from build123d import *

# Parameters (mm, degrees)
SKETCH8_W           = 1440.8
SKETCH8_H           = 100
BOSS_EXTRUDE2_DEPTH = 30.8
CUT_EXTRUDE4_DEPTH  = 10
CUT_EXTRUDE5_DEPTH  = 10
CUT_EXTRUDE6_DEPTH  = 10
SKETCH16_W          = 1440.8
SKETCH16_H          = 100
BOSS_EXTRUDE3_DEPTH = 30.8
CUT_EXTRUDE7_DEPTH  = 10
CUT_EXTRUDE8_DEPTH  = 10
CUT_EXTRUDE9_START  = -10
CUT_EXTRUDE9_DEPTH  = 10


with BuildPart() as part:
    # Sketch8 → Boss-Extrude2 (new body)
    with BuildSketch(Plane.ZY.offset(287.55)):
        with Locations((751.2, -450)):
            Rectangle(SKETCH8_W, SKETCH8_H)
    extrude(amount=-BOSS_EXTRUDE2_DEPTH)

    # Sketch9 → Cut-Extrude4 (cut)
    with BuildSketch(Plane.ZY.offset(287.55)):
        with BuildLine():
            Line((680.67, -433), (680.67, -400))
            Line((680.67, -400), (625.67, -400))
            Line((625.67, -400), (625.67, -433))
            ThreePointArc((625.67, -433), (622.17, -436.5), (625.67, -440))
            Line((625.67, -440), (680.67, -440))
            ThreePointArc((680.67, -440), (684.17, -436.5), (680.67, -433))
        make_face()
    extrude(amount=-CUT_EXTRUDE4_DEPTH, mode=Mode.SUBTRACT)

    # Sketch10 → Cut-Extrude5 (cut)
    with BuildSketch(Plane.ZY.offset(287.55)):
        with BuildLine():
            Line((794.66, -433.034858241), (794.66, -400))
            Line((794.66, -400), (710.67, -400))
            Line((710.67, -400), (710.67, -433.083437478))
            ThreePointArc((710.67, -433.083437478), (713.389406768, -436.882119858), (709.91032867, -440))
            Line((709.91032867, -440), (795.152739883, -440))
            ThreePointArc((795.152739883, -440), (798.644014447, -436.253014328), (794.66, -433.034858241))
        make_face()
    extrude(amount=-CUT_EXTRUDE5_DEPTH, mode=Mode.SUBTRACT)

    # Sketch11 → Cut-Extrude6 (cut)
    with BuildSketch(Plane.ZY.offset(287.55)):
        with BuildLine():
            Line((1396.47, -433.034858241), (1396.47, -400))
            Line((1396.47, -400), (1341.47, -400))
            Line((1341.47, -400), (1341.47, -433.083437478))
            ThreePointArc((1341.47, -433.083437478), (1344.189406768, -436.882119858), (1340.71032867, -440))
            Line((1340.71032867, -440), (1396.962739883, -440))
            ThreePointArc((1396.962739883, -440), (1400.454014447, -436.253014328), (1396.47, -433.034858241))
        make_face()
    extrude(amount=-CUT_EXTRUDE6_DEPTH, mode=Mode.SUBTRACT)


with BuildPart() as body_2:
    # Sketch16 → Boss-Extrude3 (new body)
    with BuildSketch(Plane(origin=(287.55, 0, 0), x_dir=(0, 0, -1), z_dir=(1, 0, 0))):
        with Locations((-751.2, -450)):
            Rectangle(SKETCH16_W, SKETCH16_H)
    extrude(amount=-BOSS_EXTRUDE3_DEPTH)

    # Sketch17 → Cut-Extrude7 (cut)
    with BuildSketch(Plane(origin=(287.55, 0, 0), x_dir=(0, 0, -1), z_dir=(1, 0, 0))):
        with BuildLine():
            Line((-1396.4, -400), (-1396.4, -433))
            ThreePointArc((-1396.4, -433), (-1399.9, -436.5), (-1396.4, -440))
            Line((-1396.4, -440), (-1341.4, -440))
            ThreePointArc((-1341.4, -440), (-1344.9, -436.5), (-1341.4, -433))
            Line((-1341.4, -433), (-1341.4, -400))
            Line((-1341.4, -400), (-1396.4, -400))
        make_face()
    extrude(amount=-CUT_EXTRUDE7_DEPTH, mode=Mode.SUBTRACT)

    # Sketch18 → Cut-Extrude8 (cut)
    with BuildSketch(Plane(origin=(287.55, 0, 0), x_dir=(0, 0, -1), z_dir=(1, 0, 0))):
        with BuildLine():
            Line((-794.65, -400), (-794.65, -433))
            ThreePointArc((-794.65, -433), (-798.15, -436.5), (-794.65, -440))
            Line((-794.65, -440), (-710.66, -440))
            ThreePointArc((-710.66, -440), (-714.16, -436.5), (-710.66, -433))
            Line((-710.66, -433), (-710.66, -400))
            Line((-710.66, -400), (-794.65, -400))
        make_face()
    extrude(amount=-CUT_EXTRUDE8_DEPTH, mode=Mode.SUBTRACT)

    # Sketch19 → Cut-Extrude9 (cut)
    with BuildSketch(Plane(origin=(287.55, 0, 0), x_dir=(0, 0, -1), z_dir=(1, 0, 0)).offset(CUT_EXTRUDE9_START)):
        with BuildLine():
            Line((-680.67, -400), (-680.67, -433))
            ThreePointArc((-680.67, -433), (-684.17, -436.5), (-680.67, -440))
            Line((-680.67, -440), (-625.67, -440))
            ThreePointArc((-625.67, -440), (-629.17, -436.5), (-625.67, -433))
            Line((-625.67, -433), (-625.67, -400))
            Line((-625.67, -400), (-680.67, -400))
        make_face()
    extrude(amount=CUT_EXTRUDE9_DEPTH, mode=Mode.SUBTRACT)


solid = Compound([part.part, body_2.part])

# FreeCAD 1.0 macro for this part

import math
import FreeCAD as App
import Part
import Sketcher

V = App.Vector
Q = App.Units.Quantity


def add_polygon(sketch, points):
    """Adds a closed chain of lines whose ends are joined by coincident constraints."""
    first, n = sketch.GeometryCount, len(points)
    for a, b in zip(points, points[1:] + points[:1]):
        sketch.addGeometry(Part.LineSegment(App.Vector(*a, 0), App.Vector(*b, 0)), False)
    for i in range(n):
        sketch.addConstraint(Sketcher.Constraint("Coincident", first + i, 2, first + (i + 1) % n, 1))

doc = App.newDocument("Part")
body = doc.addObject("PartDesign::Body", "Body")

# Sketch on YZ plane
sketch1 = doc.addObject("Sketcher::SketchObject", "Sketch")
body.addObject(sketch1)
sketch1.AttachmentSupport = (doc.YZ_Plane, [""])
sketch1.MapMode = "FlatFace"
sketch1.AttachmentOffset = App.Placement(V(0, 0, -287.55), App.Rotation())
add_polygon(sketch1, [(-400, 31), (-500, 31), (-500, 1472), (-400, 1472)])  # lines 0-3
sketch1.addConstraint([
    Sketcher.Constraint("Horizontal", 0),
    Sketcher.Constraint("Vertical", 1),
    Sketcher.Constraint("Horizontal", 2),
    Sketcher.Constraint("Vertical", 3),
    Sketcher.Constraint("DistanceX", 0, 2, 0, 1, Q("100 mm")),
    Sketcher.Constraint("DistanceY", 1, 1, 1, 2, Q("1440.8 mm")),
    Sketcher.Constraint("DistanceX", 0, 2, -1, 1, Q("500 mm")),
    Sketcher.Constraint("DistanceY", -1, 1, 0, 2, Q("30.8 mm")),
])
pad1 = doc.addObject("PartDesign::Pad", "Pad")
body.addObject(pad1)
pad1.Profile = sketch1
pad1.Length = 30.8

# Sketch on YZ plane
sketch2 = doc.addObject("Sketcher::SketchObject", "Sketch001")
body.addObject(sketch2)
sketch2.AttachmentSupport = (doc.YZ_Plane, [""])
sketch2.MapMode = "FlatFace"
sketch2.AttachmentOffset = App.Placement(V(0, 0, -287.55), App.Rotation())
sketch2.addGeometry([
    Part.LineSegment(V(-433, 680.7, 0), V(-400, 680.7, 0)),  # 0
    Part.LineSegment(V(-400, 680.7, 0), V(-400, 625.7, 0)),  # 1
    Part.LineSegment(V(-400, 625.7, 0), V(-433, 625.7, 0)),  # 2
    Part.ArcOfCircle(Part.Circle(V(-436.5, 625.7, 0), V(0, 0, 1), 3.5), math.radians(180), math.radians(360)),  # 3
    Part.LineSegment(V(-440, 625.7, 0), V(-440, 680.7, 0)),  # 4
    Part.ArcOfCircle(Part.Circle(V(-436.5, 680.7, 0), V(0, 0, 1), 3.5), math.radians(0), math.radians(180)),  # 5
], False)
sketch2.addConstraint([
    Sketcher.Constraint("Coincident", 0, 2, 1, 1),
    Sketcher.Constraint("Coincident", 1, 2, 2, 1),
    Sketcher.Constraint("Coincident", 2, 2, 3, 2),
    Sketcher.Constraint("Tangent", 3, 1, 4, 1),
    Sketcher.Constraint("Tangent", 4, 2, 5, 2),
    Sketcher.Constraint("Coincident", 5, 1, 0, 1),
    Sketcher.Constraint("Horizontal", 0),
    Sketcher.Constraint("Vertical", 1),
    Sketcher.Constraint("Horizontal", 2),
    Sketcher.Constraint("Vertical", 4),
    Sketcher.Constraint("Equal", 3, 5),
    Sketcher.Constraint("Horizontal", 5, 3, 0, 2),
    Sketcher.Constraint("Horizontal", 3, 3, 1, 2),
    Sketcher.Constraint("Radius", 3, Q("3.5 mm")),
    Sketcher.Constraint("DistanceX", 0, 1, 0, 2, Q("33 mm")),
    Sketcher.Constraint("DistanceY", 1, 2, 1, 1, Q("55 mm")),
    Sketcher.Constraint("DistanceX", 0, 2, -1, 1, Q("400 mm")),
    Sketcher.Constraint("DistanceY", -1, 1, 3, 3, Q("625.67 mm")),
])
pocket1 = doc.addObject("PartDesign::Pocket", "Pocket")
body.addObject(pocket1)
pocket1.Profile = sketch2
pocket1.Length = 10
pocket1.Reversed = True

# Sketch on YZ plane
sketch3 = doc.addObject("Sketcher::SketchObject", "Sketch002")
body.addObject(sketch3)
sketch3.AttachmentSupport = (doc.YZ_Plane, [""])
sketch3.MapMode = "FlatFace"
sketch3.AttachmentOffset = App.Placement(V(0, 0, -287.55), App.Rotation())
sketch3.addGeometry([
    Part.LineSegment(V(-433, 794.7, 0), V(-400, 794.7, 0)),  # 0
    Part.LineSegment(V(-400, 794.7, 0), V(-400, 710.7, 0)),  # 1
    Part.LineSegment(V(-400, 710.7, 0), V(-433.1, 710.7, 0)),  # 2
    Part.ArcOfCircle(Part.Circle(V(-436.5, 709.9, 0), V(0, 0, 1), 3.5), math.radians(13), math.radians(180)),  # 3
    Part.LineSegment(V(-440, 709.9, 0), V(-440, 795.2, 0)),  # 4
    Part.ArcOfCircle(Part.Circle(V(-436.5, 795.2, 0), V(0, 0, 1), 3.5), math.radians(-8), math.radians(180)),  # 5
], False)
sketch3.addConstraint([
    Sketcher.Constraint("Coincident", 0, 2, 1, 1),
    Sketcher.Constraint("Coincident", 1, 2, 2, 1),
    Sketcher.Constraint("Coincident", 2, 2, 3, 1),
    Sketcher.Constraint("Tangent", 3, 2, 4, 1),
    Sketcher.Constraint("Tangent", 4, 2, 5, 2),
    Sketcher.Constraint("Coincident", 5, 1, 0, 1),
    Sketcher.Constraint("Horizontal", 0),
    Sketcher.Constraint("Vertical", 1),
    Sketcher.Constraint("Horizontal", 2),
    Sketcher.Constraint("Vertical", 4),
    Sketcher.Constraint("Equal", 3, 5),
    Sketcher.Constraint("Radius", 3, Q("3.5 mm")),
    Sketcher.Constraint("DistanceX", 0, 2, -1, 1, Q("400 mm")),
    Sketcher.Constraint("DistanceX", 3, 2, -1, 1, Q("440 mm")),
    Sketcher.Constraint("DistanceY", 1, 2, 1, 1, Q("83.99 mm")),
    Sketcher.Constraint("DistanceY", -1, 1, 0, 2, Q("794.66 mm")),
    Sketcher.Constraint("DistanceX", 0, 1, 0, 2, Q("33.034858 mm")),
    Sketcher.Constraint("DistanceY", 4, 1, 4, 2, Q("85.242411 mm")),
])
pocket2 = doc.addObject("PartDesign::Pocket", "Pocket001")
body.addObject(pocket2)
pocket2.Profile = sketch3
pocket2.Length = 10
pocket2.Reversed = True

# Sketch on YZ plane
sketch4 = doc.addObject("Sketcher::SketchObject", "Sketch003")
body.addObject(sketch4)
sketch4.AttachmentSupport = (doc.YZ_Plane, [""])
sketch4.MapMode = "FlatFace"
sketch4.AttachmentOffset = App.Placement(V(0, 0, -287.55), App.Rotation())
sketch4.addGeometry([
    Part.LineSegment(V(-433, 1396.5, 0), V(-400, 1396.5, 0)),  # 0
    Part.LineSegment(V(-400, 1396.5, 0), V(-400, 1341.5, 0)),  # 1
    Part.LineSegment(V(-400, 1341.5, 0), V(-433.1, 1341.5, 0)),  # 2
    Part.ArcOfCircle(Part.Circle(V(-436.5, 1340.7, 0), V(0, 0, 1), 3.5), math.radians(13), math.radians(180)),  # 3
    Part.LineSegment(V(-440, 1340.7, 0), V(-440, 1397, 0)),  # 4
    Part.ArcOfCircle(Part.Circle(V(-436.5, 1397, 0), V(0, 0, 1), 3.5), math.radians(-8), math.radians(180)),  # 5
], False)
sketch4.addConstraint([
    Sketcher.Constraint("Coincident", 0, 2, 1, 1),
    Sketcher.Constraint("Coincident", 1, 2, 2, 1),
    Sketcher.Constraint("Coincident", 2, 2, 3, 1),
    Sketcher.Constraint("Tangent", 3, 2, 4, 1),
    Sketcher.Constraint("Tangent", 4, 2, 5, 2),
    Sketcher.Constraint("Coincident", 5, 1, 0, 1),
    Sketcher.Constraint("Horizontal", 0),
    Sketcher.Constraint("Vertical", 1),
    Sketcher.Constraint("Horizontal", 2),
    Sketcher.Constraint("Vertical", 4),
    Sketcher.Constraint("Equal", 3, 5),
    Sketcher.Constraint("Radius", 3, Q("3.5 mm")),
    Sketcher.Constraint("DistanceY", 1, 2, 1, 1, Q("55 mm")),
    Sketcher.Constraint("DistanceX", 0, 2, -1, 1, Q("400 mm")),
    Sketcher.Constraint("DistanceX", 3, 2, -1, 1, Q("440 mm")),
    Sketcher.Constraint("DistanceY", -1, 1, 0, 2, Q("1396.47 mm")),
    Sketcher.Constraint("DistanceX", 0, 1, 0, 2, Q("33.034858 mm")),
    Sketcher.Constraint("DistanceY", 4, 1, 4, 2, Q("56.252411 mm")),
])
pocket3 = doc.addObject("PartDesign::Pocket", "Pocket002")
body.addObject(pocket3)
pocket3.Profile = sketch4
pocket3.Length = 10
pocket3.Reversed = True
body2 = doc.addObject("PartDesign::Body", "Body001")

# Sketch on YZ plane
sketch5 = doc.addObject("Sketcher::SketchObject", "Sketch004")
body2.addObject(sketch5)
sketch5.AttachmentSupport = (doc.getObject("YZ_Plane001"), [""])
sketch5.MapMode = "FlatFace"
sketch5.AttachmentOffset = App.Placement(V(0, 0, 287.55), App.Rotation())
add_polygon(sketch5, [(-400, 1472), (-500, 1472), (-500, 31), (-400, 31)])  # lines 0-3
sketch5.addConstraint([
    Sketcher.Constraint("Horizontal", 0),
    Sketcher.Constraint("Vertical", 1),
    Sketcher.Constraint("Horizontal", 2),
    Sketcher.Constraint("Vertical", 3),
    Sketcher.Constraint("DistanceX", 0, 2, 0, 1, Q("100 mm")),
    Sketcher.Constraint("DistanceY", 1, 2, 1, 1, Q("1440.8 mm")),
    Sketcher.Constraint("DistanceX", 0, 2, -1, 1, Q("500 mm")),
    Sketcher.Constraint("DistanceY", -1, 1, 0, 2, Q("1471.6 mm")),
])
pad2 = doc.addObject("PartDesign::Pad", "Pad001")
body2.addObject(pad2)
pad2.Profile = sketch5
pad2.Length = 30.8
pad2.Reversed = True

# Sketch on YZ plane
sketch6 = doc.addObject("Sketcher::SketchObject", "Sketch005")
body2.addObject(sketch6)
sketch6.AttachmentSupport = (doc.getObject("YZ_Plane001"), [""])
sketch6.MapMode = "FlatFace"
sketch6.AttachmentOffset = App.Placement(V(0, 0, 287.55), App.Rotation())
sketch6.addGeometry([
    Part.LineSegment(V(-400, 1396.4, 0), V(-433, 1396.4, 0)),  # 0
    Part.ArcOfCircle(Part.Circle(V(-436.5, 1396.4, 0), V(0, 0, 1), 3.5), math.radians(0), math.radians(180)),  # 1
    Part.LineSegment(V(-440, 1396.4, 0), V(-440, 1341.4, 0)),  # 2
    Part.ArcOfCircle(Part.Circle(V(-436.5, 1341.4, 0), V(0, 0, 1), 3.5), math.radians(0), math.radians(180)),  # 3
    Part.LineSegment(V(-433, 1341.4, 0), V(-400, 1341.4, 0)),  # 4
    Part.LineSegment(V(-400, 1341.4, 0), V(-400, 1396.4, 0)),  # 5
], False)
sketch6.addConstraint([
    Sketcher.Constraint("Coincident", 0, 2, 1, 1),
    Sketcher.Constraint("Tangent", 1, 2, 2, 1),
    Sketcher.Constraint("Tangent", 2, 2, 3, 2),
    Sketcher.Constraint("Coincident", 3, 1, 4, 1),
    Sketcher.Constraint("Coincident", 4, 2, 5, 1),
    Sketcher.Constraint("Coincident", 5, 2, 0, 1),
    Sketcher.Constraint("Horizontal", 0),
    Sketcher.Constraint("Vertical", 2),
    Sketcher.Constraint("Horizontal", 4),
    Sketcher.Constraint("Vertical", 5),
    Sketcher.Constraint("Equal", 1, 3),
    Sketcher.Constraint("Horizontal", 1, 3, 0, 2),
    Sketcher.Constraint("Horizontal", 2, 2, 3, 1),
    Sketcher.Constraint("Radius", 1, Q("3.5 mm")),
    Sketcher.Constraint("DistanceX", 0, 2, 0, 1, Q("33 mm")),
    Sketcher.Constraint("DistanceY", 2, 2, 2, 1, Q("55 mm")),
    Sketcher.Constraint("DistanceX", 0, 2, -1, 1, Q("433 mm")),
    Sketcher.Constraint("DistanceY", -1, 1, 1, 3, Q("1396.4 mm")),
])
pocket4 = doc.addObject("PartDesign::Pocket", "Pocket003")
body2.addObject(pocket4)
pocket4.Profile = sketch6
pocket4.Length = 10

# Sketch on YZ plane
sketch7 = doc.addObject("Sketcher::SketchObject", "Sketch006")
body2.addObject(sketch7)
sketch7.AttachmentSupport = (doc.getObject("YZ_Plane001"), [""])
sketch7.MapMode = "FlatFace"
sketch7.AttachmentOffset = App.Placement(V(0, 0, 287.55), App.Rotation())
sketch7.addGeometry([
    Part.LineSegment(V(-400, 794.6, 0), V(-433, 794.6, 0)),  # 0
    Part.ArcOfCircle(Part.Circle(V(-436.5, 794.6, 0), V(0, 0, 1), 3.5), math.radians(0), math.radians(180)),  # 1
    Part.LineSegment(V(-440, 794.6, 0), V(-440, 710.7, 0)),  # 2
    Part.ArcOfCircle(Part.Circle(V(-436.5, 710.7, 0), V(0, 0, 1), 3.5), math.radians(0), math.radians(180)),  # 3
    Part.LineSegment(V(-433, 710.7, 0), V(-400, 710.7, 0)),  # 4
    Part.LineSegment(V(-400, 710.7, 0), V(-400, 794.6, 0)),  # 5
], False)
sketch7.addConstraint([
    Sketcher.Constraint("Coincident", 0, 2, 1, 1),
    Sketcher.Constraint("Tangent", 1, 2, 2, 1),
    Sketcher.Constraint("Tangent", 2, 2, 3, 2),
    Sketcher.Constraint("Coincident", 3, 1, 4, 1),
    Sketcher.Constraint("Coincident", 4, 2, 5, 1),
    Sketcher.Constraint("Coincident", 5, 2, 0, 1),
    Sketcher.Constraint("Horizontal", 0),
    Sketcher.Constraint("Vertical", 2),
    Sketcher.Constraint("Horizontal", 4),
    Sketcher.Constraint("Vertical", 5),
    Sketcher.Constraint("Equal", 1, 3),
    Sketcher.Constraint("Horizontal", 1, 3, 0, 2),
    Sketcher.Constraint("Horizontal", 2, 2, 3, 1),
    Sketcher.Constraint("Radius", 1, Q("3.5 mm")),
    Sketcher.Constraint("DistanceX", 0, 2, 0, 1, Q("33 mm")),
    Sketcher.Constraint("DistanceX", 0, 2, -1, 1, Q("433 mm")),
    Sketcher.Constraint("DistanceY", 2, 2, 2, 1, Q("83.99 mm")),
    Sketcher.Constraint("DistanceY", -1, 1, 1, 3, Q("794.65 mm")),
])
pocket5 = doc.addObject("PartDesign::Pocket", "Pocket004")
body2.addObject(pocket5)
pocket5.Profile = sketch7
pocket5.Length = 10

# Sketch on YZ plane
sketch8 = doc.addObject("Sketcher::SketchObject", "Sketch007")
body2.addObject(sketch8)
sketch8.AttachmentSupport = (doc.getObject("YZ_Plane001"), [""])
sketch8.MapMode = "FlatFace"
sketch8.AttachmentOffset = App.Placement(V(0, 0, 277.55), App.Rotation())
sketch8.addGeometry([
    Part.LineSegment(V(-400, 680.7, 0), V(-433, 680.7, 0)),  # 0
    Part.ArcOfCircle(Part.Circle(V(-436.5, 680.7, 0), V(0, 0, 1), 3.5), math.radians(0), math.radians(180)),  # 1
    Part.LineSegment(V(-440, 680.7, 0), V(-440, 625.7, 0)),  # 2
    Part.ArcOfCircle(Part.Circle(V(-436.5, 625.7, 0), V(0, 0, 1), 3.5), math.radians(0), math.radians(180)),  # 3
    Part.LineSegment(V(-433, 625.7, 0), V(-400, 625.7, 0)),  # 4
    Part.LineSegment(V(-400, 625.7, 0), V(-400, 680.7, 0)),  # 5
], False)
sketch8.addConstraint([
    Sketcher.Constraint("Coincident", 0, 2, 1, 1),
    Sketcher.Constraint("Tangent", 1, 2, 2, 1),
    Sketcher.Constraint("Tangent", 2, 2, 3, 2),
    Sketcher.Constraint("Coincident", 3, 1, 4, 1),
    Sketcher.Constraint("Coincident", 4, 2, 5, 1),
    Sketcher.Constraint("Coincident", 5, 2, 0, 1),
    Sketcher.Constraint("Horizontal", 0),
    Sketcher.Constraint("Vertical", 2),
    Sketcher.Constraint("Horizontal", 4),
    Sketcher.Constraint("Vertical", 5),
    Sketcher.Constraint("Equal", 1, 3),
    Sketcher.Constraint("Horizontal", 1, 3, 0, 2),
    Sketcher.Constraint("Horizontal", 2, 2, 3, 1),
    Sketcher.Constraint("Radius", 1, Q("3.5 mm")),
    Sketcher.Constraint("DistanceX", 0, 2, 0, 1, Q("33 mm")),
    Sketcher.Constraint("DistanceY", 2, 2, 2, 1, Q("55 mm")),
    Sketcher.Constraint("DistanceX", 0, 2, -1, 1, Q("433 mm")),
    Sketcher.Constraint("DistanceY", -1, 1, 1, 3, Q("680.67 mm")),
])
pocket6 = doc.addObject("PartDesign::Pocket", "Pocket005")
body2.addObject(pocket6)
pocket6.Profile = sketch8
pocket6.Length = 10
pocket6.Reversed = True

doc.recompute()
